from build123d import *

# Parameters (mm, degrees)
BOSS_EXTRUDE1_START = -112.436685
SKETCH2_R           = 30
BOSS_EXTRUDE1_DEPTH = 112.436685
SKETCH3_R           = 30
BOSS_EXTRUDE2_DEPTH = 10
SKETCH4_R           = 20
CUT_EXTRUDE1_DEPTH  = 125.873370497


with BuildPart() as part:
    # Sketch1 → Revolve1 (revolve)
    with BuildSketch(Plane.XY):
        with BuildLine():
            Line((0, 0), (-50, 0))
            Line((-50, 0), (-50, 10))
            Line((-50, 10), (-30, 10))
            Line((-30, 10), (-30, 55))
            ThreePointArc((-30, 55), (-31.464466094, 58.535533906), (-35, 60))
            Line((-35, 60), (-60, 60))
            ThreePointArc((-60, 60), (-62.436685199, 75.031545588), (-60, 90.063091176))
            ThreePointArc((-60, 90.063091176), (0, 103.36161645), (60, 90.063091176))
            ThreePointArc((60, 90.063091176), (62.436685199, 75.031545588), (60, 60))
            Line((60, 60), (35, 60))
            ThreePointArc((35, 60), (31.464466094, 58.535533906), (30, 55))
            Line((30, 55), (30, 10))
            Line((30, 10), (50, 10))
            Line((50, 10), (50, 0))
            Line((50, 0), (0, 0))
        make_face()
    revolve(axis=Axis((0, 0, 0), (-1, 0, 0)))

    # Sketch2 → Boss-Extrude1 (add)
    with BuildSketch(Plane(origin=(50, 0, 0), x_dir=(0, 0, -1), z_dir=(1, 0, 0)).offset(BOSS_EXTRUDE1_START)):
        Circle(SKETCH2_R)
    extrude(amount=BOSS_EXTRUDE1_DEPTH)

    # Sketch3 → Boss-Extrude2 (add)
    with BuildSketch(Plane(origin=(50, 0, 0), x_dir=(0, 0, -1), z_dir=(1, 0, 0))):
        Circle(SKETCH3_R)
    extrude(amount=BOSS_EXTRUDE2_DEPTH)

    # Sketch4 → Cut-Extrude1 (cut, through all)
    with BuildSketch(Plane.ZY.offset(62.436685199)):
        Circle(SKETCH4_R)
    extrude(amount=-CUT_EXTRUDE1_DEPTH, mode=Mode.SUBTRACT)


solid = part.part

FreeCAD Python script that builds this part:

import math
import FreeCAD as App
import Part
import Sketcher
Q = App.Units.Quantity

doc = App.newDocument("Part")
body = doc.addObject("PartDesign::Body", "Body")

sketch1 = doc.addObject("Sketcher::SketchObject", "Sketch")
body.addObject(sketch1)
sketch1.AttachmentSupport = (doc.XY_Plane, [""])
sketch1.MapMode = "FlatFace"
sketch1.addGeometry([
    Part.LineSegment(App.Vector(-50, 10, 0), App.Vector(-50, 0, 0)),
    Part.LineSegment(App.Vector(-50, 0, 0), App.Vector(50, 0, 0)),
    Part.LineSegment(App.Vector(50, 0, 0), App.Vector(50, 10, 0)),
    Part.LineSegment(App.Vector(50, 10, 0), App.Vector(30, 10, 0)),
    Part.LineSegment(App.Vector(30, 10, 0), App.Vector(30, 55, 0)),
    Part.ArcOfCircle(Part.Circle(App.Vector(35, 55, 0), App.Vector(0, 0, 1), 5), math.radians(90), math.radians(180)),
    Part.LineSegment(App.Vector(35, 60, 0), App.Vector(60, 60, 0)),
    Part.ArcOfCircle(Part.Circle(App.Vector(15, 75, 0), App.Vector(0, 0, 1), 48), math.radians(-18), math.radians(18)),
    Part.ArcOfCircle(Part.Circle(App.Vector(0, -39, 0), App.Vector(0, 0, 1), 142), math.radians(65), math.radians(115)),
    Part.ArcOfCircle(Part.Circle(App.Vector(-15, 75, 0), App.Vector(0, 0, 1), 48), math.radians(162), math.radians(198)),
    Part.LineSegment(App.Vector(-60, 60, 0), App.Vector(-35, 60, 0)),
    Part.ArcOfCircle(Part.Circle(App.Vector(-35, 55, 0), App.Vector(0, 0, 1), 5), math.radians(0), math.radians(90)),
    Part.LineSegment(App.Vector(-30, 55, 0), App.Vector(-30, 10, 0)),
    Part.LineSegment(App.Vector(-30, 10, 0), App.Vector(-50, 10, 0)),
], False)
sketch1.addConstraint([
    Sketcher.Constraint("Coincident", 0, 2, 1, 1),
    Sketcher.Constraint("Coincident", 1, 2, 2, 1),
    Sketcher.Constraint("Coincident", 2, 2, 3, 1),
    Sketcher.Constraint("Coincident", 3, 2, 4, 1),
    Sketcher.Constraint("Tangent", 4, 2, 5, 2),
    Sketcher.Constraint("Tangent", 5, 1, 6, 1),
    Sketcher.Constraint("Coincident", 6, 2, 7, 1),
    Sketcher.Constraint("Coincident", 7, 2, 8, 1),
    Sketcher.Constraint("Coincident", 8, 2, 9, 1),
    Sketcher.Constraint("Coincident", 9, 2, 10, 1),
    Sketcher.Constraint("Tangent", 10, 2, 11, 2),
    Sketcher.Constraint("Tangent", 11, 1, 12, 1),
    Sketcher.Constraint("Coincident", 12, 2, 13, 1),
    Sketcher.Constraint("Coincident", 13, 2, 0, 1),
    Sketcher.Constraint("Vertical", 0),
    Sketcher.Constraint("Horizontal", 1),
    Sketcher.Constraint("Vertical", 2),
    Sketcher.Constraint("Horizontal", 3),
    Sketcher.Constraint("Vertical", 4),
    Sketcher.Constraint("Horizontal", 6),
    Sketcher.Constraint("Horizontal", 10),
    Sketcher.Constraint("Vertical", 12),
    Sketcher.Constraint("Horizontal", 13),
    Sketcher.Constraint("Equal", 7, 9),
    Sketcher.Constraint("Equal", 5, 11),
    Sketcher.Constraint("Symmetric", 0, 2, 1, 2, -1, 1),
    Sketcher.Constraint("Symmetric", 7, 3, 9, 3, -2),
    Sketcher.Constraint("Symmetric", 5, 3, 11, 3, -2),
    Sketcher.Constraint("PointOnObject", 8, 3, -2),
    Sketcher.Constraint("Horizontal", 3, 2, 12, 2),
    Sketcher.Constraint("Vertical", 6, 2, 7, 2),
    Sketcher.Constraint("Radius", 5, Q("5 mm")),
    Sketcher.Constraint("DistanceX", 1, 1, 1, 2, Q("100 mm")),
    Sketcher.Constraint("DistanceX", 3, 2, 3, 1, Q("20 mm")),
    Sketcher.Constraint("DistanceX", 6, 1, 6, 2, Q("25 mm")),
    Sketcher.Constraint("DistanceY", 0, 2, 0, 1, Q("10 mm")),
    Sketcher.Constraint("DistanceY", 4, 1, 4, 2, Q("45 mm")),
    Sketcher.Constraint("DistanceY", 8, 3, -1, 1, Q("38.641 mm")),
    Sketcher.Constraint("Radius", 7, Q("47.582018 mm")),
    Sketcher.Constraint("Radius", 8, Q("142.002617 mm")),
])
revolution = doc.addObject("PartDesign::Revolution", "Revolution")
body.addObject(revolution)
revolution.Profile = sketch1
revolution.ReferenceAxis = (sketch1, ["H_Axis"])
revolution.Angle = 360

sketch2 = doc.addObject("Sketcher::SketchObject", "Sketch001")
body.addObject(sketch2)
sketch2.AttachmentSupport = (doc.YZ_Plane, [""])
sketch2.MapMode = "FlatFace"
sketch2.AttachmentOffset = App.Placement(App.Vector(0, 0, -62.436685), App.Rotation())
sketch2.addGeometry(Part.Circle(App.Vector(0, 0, 0), App.Vector(0, 0, 1), 30), False)
sketch2.addConstraint([
    Sketcher.Constraint("Coincident", 0, 3, -1, 1),
    Sketcher.Constraint("Diameter", 0, Q("60 mm")),
])
pad1 = doc.addObject("PartDesign::Pad", "Pad")
body.addObject(pad1)
pad1.Profile = sketch2
pad1.Length = 112.436685

sketch3 = doc.addObject("Sketcher::SketchObject", "Sketch002")
body.addObject(sketch3)
sketch3.AttachmentSupport = (doc.YZ_Plane, [""])
sketch3.MapMode = "FlatFace"
sketch3.AttachmentOffset = App.Placement(App.Vector(0, 0, 50), App.Rotation())
sketch3.addGeometry(Part.Circle(App.Vector(0, 0, 0), App.Vector(0, 0, 1), 30), False)
sketch3.addConstraint([
    Sketcher.Constraint("Coincident", 0, 3, -1, 1),
    Sketcher.Constraint("Diameter", 0, Q("60 mm")),
])
pad2 = doc.addObject("PartDesign::Pad", "Pad001")
body.addObject(pad2)
pad2.Profile = sketch3
pad2.Length = 10

sketch4 = doc.addObject("Sketcher::SketchObject", "Sketch003")
body.addObject(sketch4)
sketch4.AttachmentSupport = (doc.YZ_Plane, [""])
sketch4.MapMode = "FlatFace"
sketch4.AttachmentOffset = App.Placement(App.Vector(0, 0, -62.436685), App.Rotation())
sketch4.addGeometry(Part.Circle(App.Vector(0, 0, 0), App.Vector(0, 0, 1), 20), False)
sketch4.addConstraint([
    Sketcher.Constraint("Coincident", 0, 3, -1, 1),
    Sketcher.Constraint("Diameter", 0, Q("40 mm")),
])
pocket1 = doc.addObject("PartDesign::Pocket", "Pocket")
body.addObject(pocket1)
pocket1.Profile = sketch4
pocket1.Type = "ThroughAll"
pocket1.Reversed = True

doc.recompute()
